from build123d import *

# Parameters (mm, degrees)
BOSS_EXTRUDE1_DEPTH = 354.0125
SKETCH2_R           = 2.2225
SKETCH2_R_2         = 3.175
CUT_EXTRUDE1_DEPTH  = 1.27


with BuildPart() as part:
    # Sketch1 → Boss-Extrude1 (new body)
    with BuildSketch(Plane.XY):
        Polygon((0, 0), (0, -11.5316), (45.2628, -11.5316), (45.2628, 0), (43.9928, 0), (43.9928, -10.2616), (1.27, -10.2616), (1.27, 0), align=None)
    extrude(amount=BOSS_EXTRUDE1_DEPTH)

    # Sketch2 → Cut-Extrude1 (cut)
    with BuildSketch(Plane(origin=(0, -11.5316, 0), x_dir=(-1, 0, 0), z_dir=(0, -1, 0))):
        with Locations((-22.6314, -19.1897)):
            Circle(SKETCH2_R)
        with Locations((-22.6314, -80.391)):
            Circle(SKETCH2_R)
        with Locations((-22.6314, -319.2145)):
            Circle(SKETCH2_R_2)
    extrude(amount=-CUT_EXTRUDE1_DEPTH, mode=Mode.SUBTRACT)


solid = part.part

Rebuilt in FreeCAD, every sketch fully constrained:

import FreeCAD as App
import Part
import Sketcher

V = App.Vector
Q = App.Units.Quantity

doc = App.newDocument("Part")
body = doc.addObject("PartDesign::Body", "Body")

sketch1 = doc.addObject("Sketcher::SketchObject", "Sketch")
body.addObject(sketch1)
sketch1.AttachmentSupport = (doc.XY_Plane, [""])
sketch1.MapMode = "FlatFace"
sketch1.addGeometry(Part.LineSegment(V(0, 0, 0), V(0, -11.5, 0)), False)
sketch1.addGeometry(Part.LineSegment(V(0, -11.5, 0), V(45.3, -11.5, 0)), False)
sketch1.addGeometry(Part.LineSegment(V(45.3, -11.5, 0), V(45.3, 0, 0)), False)
sketch1.addGeometry(Part.LineSegment(V(45.3, 0, 0), V(44, 0, 0)), False)
sketch1.addGeometry(Part.LineSegment(V(44, 0, 0), V(44, -10.3, 0)), False)
sketch1.addGeometry(Part.LineSegment(V(44, -10.3, 0), V(1.3, -10.3, 0)), False)
sketch1.addGeometry(Part.LineSegment(V(1.3, -10.3, 0), V(1.3, 0, 0)), False)
sketch1.addGeometry(Part.LineSegment(V(1.3, 0, 0), V(0, 0, 0)), False)
sketch1.addConstraint(Sketcher.Constraint("Coincident", 0, 2, 1, 1))
sketch1.addConstraint(Sketcher.Constraint("Coincident", 1, 2, 2, 1))
sketch1.addConstraint(Sketcher.Constraint("Coincident", 2, 2, 3, 1))
sketch1.addConstraint(Sketcher.Constraint("Coincident", 3, 2, 4, 1))
sketch1.addConstraint(Sketcher.Constraint("Coincident", 4, 2, 5, 1))
sketch1.addConstraint(Sketcher.Constraint("Coincident", 5, 2, 6, 1))
sketch1.addConstraint(Sketcher.Constraint("Coincident", 6, 2, 7, 1))
sketch1.addConstraint(Sketcher.Constraint("Coincident", 7, 2, 0, 1))
sketch1.addConstraint(Sketcher.Constraint("Vertical", 0))
sketch1.addConstraint(Sketcher.Constraint("Horizontal", 1))
sketch1.addConstraint(Sketcher.Constraint("Vertical", 2))
sketch1.addConstraint(Sketcher.Constraint("Horizontal", 3))
sketch1.addConstraint(Sketcher.Constraint("Vertical", 4))
sketch1.addConstraint(Sketcher.Constraint("Horizontal", 5))
sketch1.addConstraint(Sketcher.Constraint("Vertical", 6))
sketch1.addConstraint(Sketcher.Constraint("Horizontal", 7))
sketch1.addConstraint(Sketcher.Constraint("Coincident", 7, 2, -1, 1))
sketch1.addConstraint(Sketcher.Constraint("PointOnObject", 2, 2, -1))
sketch1.addConstraint(Sketcher.Constraint("Equal", 3, 7))
sketch1.addConstraint(Sketcher.Constraint("DistanceX", 3, 2, 3, 1, Q("0.05 in")))
sketch1.addConstraint(Sketcher.Constraint("DistanceX", 1, 1, 1, 2, Q("1.782 in")))
sketch1.addConstraint(Sketcher.Constraint("DistanceY", 0, 2, 0, 1, Q("0.454 in")))
sketch1.addConstraint(Sketcher.Constraint("DistanceY", 4, 2, 4, 1, Q("0.404 in")))
pad1 = doc.addObject("PartDesign::Pad", "Pad")
body.addObject(pad1)
pad1.Profile = sketch1
pad1.Length = Q("13.9375 in")

sketch2 = doc.addObject("Sketcher::SketchObject", "Sketch001")
body.addObject(sketch2)
sketch2.AttachmentSupport = (doc.XZ_Plane, [""])
sketch2.MapMode = "FlatFace"
sketch2.AttachmentOffset = App.Placement(V(0, 0, 0.454 * 25.4), App.Rotation())
sketch2.addGeometry(Part.Circle(V(22.6, 19.2, 0), V(0, 0, 1), 2.2), False)
sketch2.addGeometry(Part.Circle(V(22.6, 80.4, 0), V(0, 0, 1), 2.2), False)
sketch2.addGeometry(Part.Circle(V(22.6, 319.2, 0), V(0, 0, 1), 3.2), False)
sketch2.addConstraint(Sketcher.Constraint("Equal", 0, 1))
sketch2.addConstraint(Sketcher.Constraint("Vertical", 0, 3, 1, 3))
sketch2.addConstraint(Sketcher.Constraint("Vertical", 1, 3, 2, 3))
sketch2.addConstraint(Sketcher.Constraint("Diameter", 2, Q("0.25 in")))
sketch2.addConstraint(Sketcher.Constraint("Diameter", 0, Q("0.175 in")))
sketch2.addConstraint(Sketcher.Constraint("DistanceX", -1, 1, 0, 3, Q("0.891 in")))
sketch2.addConstraint(Sketcher.Constraint("DistanceY", -1, 1, 1, 3, Q("3.165 in")))
sketch2.addConstraint(Sketcher.Constraint("DistanceY", 0, 3, 2, 3, Q("11.812 in")))
sketch2.addConstraint(Sketcher.Constraint("DistanceY", -1, 1, 0, 3, Q("0.7555 in")))
pocket1 = doc.addObject("PartDesign::Pocket", "Pocket")
body.addObject(pocket1)
pocket1.Profile = sketch2
pocket1.Length = Q("0.05 in")

doc.recompute()
